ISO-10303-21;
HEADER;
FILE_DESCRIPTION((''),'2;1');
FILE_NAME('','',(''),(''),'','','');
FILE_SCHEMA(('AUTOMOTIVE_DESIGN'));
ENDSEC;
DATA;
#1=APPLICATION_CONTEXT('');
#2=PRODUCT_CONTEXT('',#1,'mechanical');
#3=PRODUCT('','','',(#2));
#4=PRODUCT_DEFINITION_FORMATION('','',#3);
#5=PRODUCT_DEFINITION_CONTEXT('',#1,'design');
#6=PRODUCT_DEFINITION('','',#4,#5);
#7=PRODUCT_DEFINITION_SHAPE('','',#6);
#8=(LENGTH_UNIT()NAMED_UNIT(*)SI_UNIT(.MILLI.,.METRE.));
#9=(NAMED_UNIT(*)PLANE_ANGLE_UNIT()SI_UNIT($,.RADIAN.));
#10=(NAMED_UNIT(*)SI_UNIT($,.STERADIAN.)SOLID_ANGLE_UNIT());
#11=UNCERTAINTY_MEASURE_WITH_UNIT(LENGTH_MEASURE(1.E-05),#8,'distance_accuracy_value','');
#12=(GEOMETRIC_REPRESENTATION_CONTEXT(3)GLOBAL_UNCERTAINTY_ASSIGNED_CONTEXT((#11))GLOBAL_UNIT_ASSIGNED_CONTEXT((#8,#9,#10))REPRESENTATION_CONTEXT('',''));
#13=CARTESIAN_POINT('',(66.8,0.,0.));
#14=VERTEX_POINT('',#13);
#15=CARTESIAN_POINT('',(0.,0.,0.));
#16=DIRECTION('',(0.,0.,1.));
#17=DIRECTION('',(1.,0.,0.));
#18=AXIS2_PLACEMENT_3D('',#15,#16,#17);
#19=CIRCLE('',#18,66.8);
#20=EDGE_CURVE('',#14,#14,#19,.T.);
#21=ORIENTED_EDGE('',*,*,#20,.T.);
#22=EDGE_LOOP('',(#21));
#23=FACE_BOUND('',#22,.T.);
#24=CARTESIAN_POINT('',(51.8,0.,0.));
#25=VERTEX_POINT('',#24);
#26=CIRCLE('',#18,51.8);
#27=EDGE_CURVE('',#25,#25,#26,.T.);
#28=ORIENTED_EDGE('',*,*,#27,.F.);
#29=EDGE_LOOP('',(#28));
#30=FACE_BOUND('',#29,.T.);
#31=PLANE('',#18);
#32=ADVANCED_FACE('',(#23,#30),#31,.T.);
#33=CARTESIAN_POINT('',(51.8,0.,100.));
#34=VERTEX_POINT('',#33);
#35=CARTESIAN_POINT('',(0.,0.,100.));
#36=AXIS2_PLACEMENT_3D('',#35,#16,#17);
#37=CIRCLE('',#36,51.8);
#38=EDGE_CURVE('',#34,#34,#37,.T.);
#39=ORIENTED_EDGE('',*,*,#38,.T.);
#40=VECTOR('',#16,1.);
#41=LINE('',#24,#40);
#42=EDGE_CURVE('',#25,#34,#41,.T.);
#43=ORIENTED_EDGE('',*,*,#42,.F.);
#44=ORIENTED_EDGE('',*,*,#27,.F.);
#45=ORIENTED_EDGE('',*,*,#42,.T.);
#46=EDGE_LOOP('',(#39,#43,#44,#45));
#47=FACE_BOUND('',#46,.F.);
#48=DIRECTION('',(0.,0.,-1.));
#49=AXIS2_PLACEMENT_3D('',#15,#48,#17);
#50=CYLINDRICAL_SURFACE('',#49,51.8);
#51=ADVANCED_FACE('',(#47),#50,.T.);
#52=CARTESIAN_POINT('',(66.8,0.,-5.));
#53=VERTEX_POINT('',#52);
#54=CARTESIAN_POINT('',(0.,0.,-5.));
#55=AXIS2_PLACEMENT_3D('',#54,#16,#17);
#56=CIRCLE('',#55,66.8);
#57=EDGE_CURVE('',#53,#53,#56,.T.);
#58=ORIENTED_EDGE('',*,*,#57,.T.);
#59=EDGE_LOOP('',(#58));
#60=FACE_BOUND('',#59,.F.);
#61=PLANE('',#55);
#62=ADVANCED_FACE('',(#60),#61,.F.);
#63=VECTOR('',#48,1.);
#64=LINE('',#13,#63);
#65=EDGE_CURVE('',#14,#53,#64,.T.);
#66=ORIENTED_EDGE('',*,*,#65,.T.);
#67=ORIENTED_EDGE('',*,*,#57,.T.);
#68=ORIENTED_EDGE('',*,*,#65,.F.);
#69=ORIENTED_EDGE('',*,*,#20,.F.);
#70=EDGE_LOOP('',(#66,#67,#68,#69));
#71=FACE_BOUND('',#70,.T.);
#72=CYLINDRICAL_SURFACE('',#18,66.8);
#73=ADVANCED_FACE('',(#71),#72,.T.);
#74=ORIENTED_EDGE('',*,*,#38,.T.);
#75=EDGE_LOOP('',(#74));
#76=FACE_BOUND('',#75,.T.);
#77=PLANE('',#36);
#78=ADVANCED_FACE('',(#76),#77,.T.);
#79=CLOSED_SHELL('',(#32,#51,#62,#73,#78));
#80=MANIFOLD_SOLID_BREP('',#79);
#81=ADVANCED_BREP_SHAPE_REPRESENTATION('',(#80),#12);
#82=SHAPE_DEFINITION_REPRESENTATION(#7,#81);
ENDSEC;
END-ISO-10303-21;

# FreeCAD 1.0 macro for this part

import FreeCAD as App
import Part
import Sketcher
from FreeCAD import Vector
Q = App.Units.Quantity

doc = App.newDocument("Part")
body = doc.addObject("PartDesign::Body", "Body")

sketch1 = body.newObject("Sketcher::SketchObject", "Sketch")
sketch1.AttachmentSupport = (doc.getObject("XY_Plane"), [""])
sketch1.MapMode = "FlatFace"
sketch1.addGeometry(Part.Circle(Vector(0, 0, 0), Vector(0, 0, 1), 52), False)
sketch1.addConstraint([
    Sketcher.Constraint("Coincident", 0, 3, -1, 1),
    Sketcher.Constraint("Diameter", 0, Q("103.6 mm")),
])
pad1 = body.newObject("PartDesign::Pad", "Pad")
pad1.Profile = sketch1
pad1.Length = 100

sketch2 = body.newObject("Sketcher::SketchObject", "Sketch001")
sketch2.AttachmentSupport = (doc.getObject("XY_Plane"), [""])
sketch2.MapMode = "FlatFace"
sketch2.addGeometry(Part.Circle(Vector(0, 0, 0), Vector(0, 0, 1), 67), False)
sketch2.addConstraint([
    Sketcher.Constraint("Coincident", 0, 3, -1, 1),
    Sketcher.Constraint("Diameter", 0, Q("133.6 mm")),
])
pad2 = body.newObject("PartDesign::Pad", "Pad001")
pad2.Profile = sketch2
pad2.Length = 5
pad2.Reversed = True

doc.recompute()
